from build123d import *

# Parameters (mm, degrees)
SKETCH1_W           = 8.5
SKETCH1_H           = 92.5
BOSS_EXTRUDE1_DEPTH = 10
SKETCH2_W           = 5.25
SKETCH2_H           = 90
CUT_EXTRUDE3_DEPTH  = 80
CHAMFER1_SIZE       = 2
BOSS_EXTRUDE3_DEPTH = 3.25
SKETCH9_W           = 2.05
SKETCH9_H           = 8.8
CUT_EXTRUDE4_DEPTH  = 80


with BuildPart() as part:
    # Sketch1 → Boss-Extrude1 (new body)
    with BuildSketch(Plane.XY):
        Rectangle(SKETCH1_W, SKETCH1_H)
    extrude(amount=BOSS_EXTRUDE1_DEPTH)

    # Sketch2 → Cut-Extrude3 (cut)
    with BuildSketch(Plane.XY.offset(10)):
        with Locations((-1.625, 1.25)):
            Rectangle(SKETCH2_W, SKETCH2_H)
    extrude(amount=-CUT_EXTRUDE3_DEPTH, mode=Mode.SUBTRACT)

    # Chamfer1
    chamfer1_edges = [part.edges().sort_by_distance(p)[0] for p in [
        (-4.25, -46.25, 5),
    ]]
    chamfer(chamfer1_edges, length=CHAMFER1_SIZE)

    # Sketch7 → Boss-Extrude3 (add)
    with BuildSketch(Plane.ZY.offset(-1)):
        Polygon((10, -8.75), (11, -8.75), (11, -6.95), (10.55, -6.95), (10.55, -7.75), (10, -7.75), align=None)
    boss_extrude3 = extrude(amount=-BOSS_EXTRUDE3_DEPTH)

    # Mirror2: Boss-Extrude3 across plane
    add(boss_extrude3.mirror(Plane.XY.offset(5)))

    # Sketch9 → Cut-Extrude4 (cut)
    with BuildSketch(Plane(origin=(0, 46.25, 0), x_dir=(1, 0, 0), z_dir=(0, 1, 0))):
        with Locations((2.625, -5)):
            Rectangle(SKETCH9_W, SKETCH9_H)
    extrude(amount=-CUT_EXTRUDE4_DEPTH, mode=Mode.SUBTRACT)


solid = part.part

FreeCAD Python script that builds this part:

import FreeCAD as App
import Part
import Sketcher


def edges_at(feature, points):
    """Names of the edges that pass closest to the given points."""
    edges = feature.Shape.Edges
    near = lambda p: min(range(len(edges)), key=lambda i: edges[i].distToShape(Part.Vertex(*p))[0])
    return sorted({f"Edge{near(p) + 1}" for p in points})

doc = App.newDocument("Part")
body = doc.addObject("PartDesign::Body", "Body")

sketch1 = body.newObject("Sketcher::SketchObject", "Sketch")
sketch1.AttachmentSupport = (doc.getObject("XY_Plane"), [""])
sketch1.MapMode = "FlatFace"
sketch1.addGeometry([
    Part.LineSegment(App.Vector(-4, 46, 0), App.Vector(-4, -46, 0)),
    Part.LineSegment(App.Vector(-4, -46, 0), App.Vector(4, -46, 0)),
    Part.LineSegment(App.Vector(4, -46, 0), App.Vector(4, 46, 0)),
    Part.LineSegment(App.Vector(4, 46, 0), App.Vector(-4, 46, 0)),
], False)
sketch1.addConstraint([
    Sketcher.Constraint("Coincident", 0, 2, 1, 1),
    Sketcher.Constraint("Coincident", 1, 2, 2, 1),
    Sketcher.Constraint("Coincident", 2, 2, 3, 1),
    Sketcher.Constraint("Coincident", 3, 2, 0, 1),
    Sketcher.Constraint("Vertical", 0),
    Sketcher.Constraint("Horizontal", 1),
    Sketcher.Constraint("Vertical", 2),
    Sketcher.Constraint("Horizontal", 3),
    Sketcher.Constraint("Symmetric", 0, 2, 2, 2, -1, 1),
    Sketcher.Constraint("DistanceX", 1, 1, 1, 2, 8.5),
    Sketcher.Constraint("DistanceY", 0, 2, 0, 1, 92.5),
])
pad1 = body.newObject("PartDesign::Pad", "Pad")
pad1.Profile = sketch1
pad1.Length = 10

sketch2 = body.newObject("Sketcher::SketchObject", "Sketch001")
sketch2.AttachmentSupport = (doc.getObject("XY_Plane"), [""])
sketch2.MapMode = "FlatFace"
sketch2.AttachmentOffset = App.Placement(App.Vector(0, 0, 10), App.Rotation())
sketch2.addGeometry([
    Part.LineSegment(App.Vector(-4, 46, 0), App.Vector(-4, -44, 0)),
    Part.LineSegment(App.Vector(-4, -44, 0), App.Vector(1, -44, 0)),
    Part.LineSegment(App.Vector(1, -44, 0), App.Vector(1, 46, 0)),
    Part.LineSegment(App.Vector(1, 46, 0), App.Vector(-4, 46, 0)),
], False)
sketch2.addConstraint([
    Sketcher.Constraint("Coincident", 0, 2, 1, 1),
    Sketcher.Constraint("Coincident", 1, 2, 2, 1),
    Sketcher.Constraint("Coincident", 2, 2, 3, 1),
    Sketcher.Constraint("Coincident", 3, 2, 0, 1),
    Sketcher.Constraint("Vertical", 0),
    Sketcher.Constraint("Horizontal", 1),
    Sketcher.Constraint("Vertical", 2),
    Sketcher.Constraint("Horizontal", 3),
    Sketcher.Constraint("DistanceY", 0, 2, 0, 1, 90.0),
    Sketcher.Constraint("DistanceX", -1, 1, 1, 2, 1.0),
    Sketcher.Constraint("DistanceX", 1, 1, 1, 2, 5.25),
    Sketcher.Constraint("DistanceY", 0, 2, -1, 1, 43.75),
])
pocket1 = body.newObject("PartDesign::Pocket", "Pocket")
pocket1.Profile = sketch2
pocket1.Length = 80
doc.recompute()

chamfer = body.newObject("PartDesign::Chamfer", "Chamfer")
chamfer.Base = (pocket1, edges_at(pocket1, [(-4.25, -46.25, 5)]))
chamfer.Size = 2

sketch3 = body.newObject("Sketcher::SketchObject", "Sketch002")
sketch3.AttachmentSupport = (doc.getObject("YZ_Plane"), [""])
sketch3.MapMode = "FlatFace"
sketch3.AttachmentOffset = App.Placement(App.Vector(0, 0, 1), App.Rotation())
sketch3.addGeometry([
    Part.LineSegment(App.Vector(-8.75, 10, 0), App.Vector(-8.75, 11, 0)),
    Part.LineSegment(App.Vector(-8.75, 11, 0), App.Vector(-6.95, 11, 0)),
    Part.LineSegment(App.Vector(-6.95, 11, 0), App.Vector(-6.95, 10.55, 0)),
    Part.LineSegment(App.Vector(-6.95, 10.55, 0), App.Vector(-7.75, 10.55, 0)),
    Part.LineSegment(App.Vector(-7.75, 10.55, 0), App.Vector(-7.75, 10, 0)),
    Part.LineSegment(App.Vector(-7.75, 10, 0), App.Vector(-8.75, 10, 0)),
], False)
sketch3.addConstraint([
    Sketcher.Constraint("Coincident", 0, 2, 1, 1),
    Sketcher.Constraint("Coincident", 1, 2, 2, 1),
    Sketcher.Constraint("Coincident", 2, 2, 3, 1),
    Sketcher.Constraint("Coincident", 3, 2, 4, 1),
    Sketcher.Constraint("Coincident", 4, 2, 5, 1),
    Sketcher.Constraint("Coincident", 5, 2, 0, 1),
    Sketcher.Constraint("Vertical", 0),
    Sketcher.Constraint("Horizontal", 1),
    Sketcher.Constraint("Vertical", 2),
    Sketcher.Constraint("Horizontal", 3),
    Sketcher.Constraint("Vertical", 4),
    Sketcher.Constraint("Horizontal", 5),
    Sketcher.Constraint("Equal", 5, 0),
    Sketcher.Constraint("DistanceX", 5, 2, 5, 1, 1.0),
    Sketcher.Constraint("DistanceX", 1, 1, 1, 2, 1.8),
    Sketcher.Constraint("DistanceY", -1, 1, 0, 2, 11.0),
    Sketcher.Constraint("DistanceY", 2, 2, 2, 1, 0.45),
    Sketcher.Constraint("DistanceX", 0, 2, -1, 1, 8.75),
])
pad2 = body.newObject("PartDesign::Pad", "Pad001")
pad2.Profile = sketch3
pad2.Length = 3.25
doc.recompute()

datumplane = body.newObject("PartDesign::Plane", "DatumPlane")
datumplane.AttachmentSupport = (doc.getObject("XY_Plane"), [""])
datumplane.MapMode = "FlatFace"
datumplane.AttachmentOffset = App.Placement(App.Vector(0, 0, 5), App.Rotation())
mirrored = body.newObject("PartDesign::Mirrored", "Mirrored")
mirrored.Originals = [pad2]
mirrored.MirrorPlane = (datumplane, [""])
body.Tip = mirrored

sketch4 = body.newObject("Sketcher::SketchObject", "Sketch003")
sketch4.AttachmentSupport = (doc.getObject("XZ_Plane"), [""])
sketch4.MapMode = "FlatFace"
sketch4.AttachmentOffset = App.Placement(App.Vector(0, 0, -46.25), App.Rotation())
sketch4.addGeometry([
    Part.LineSegment(App.Vector(1.6, 0.6, 0), App.Vector(1.6, 9.4, 0)),
    Part.LineSegment(App.Vector(1.6, 9.4, 0), App.Vector(3.6, 9.4, 0)),
    Part.LineSegment(App.Vector(3.6, 9.4, 0), App.Vector(3.6, 0.6, 0)),
    Part.LineSegment(App.Vector(3.6, 0.6, 0), App.Vector(1.6, 0.6, 0)),
], False)
sketch4.addConstraint([
    Sketcher.Constraint("Coincident", 0, 2, 1, 1),
    Sketcher.Constraint("Coincident", 1, 2, 2, 1),
    Sketcher.Constraint("Coincident", 2, 2, 3, 1),
    Sketcher.Constraint("Coincident", 3, 2, 0, 1),
    Sketcher.Constraint("Vertical", 0),
    Sketcher.Constraint("Horizontal", 1),
    Sketcher.Constraint("Vertical", 2),
    Sketcher.Constraint("Horizontal", 3),
    Sketcher.Constraint("DistanceY", 0, 1, 0, 2, 8.8),
    Sketcher.Constraint("DistanceX", 1, 1, 1, 2, 2.05),
    Sketcher.Constraint("DistanceX", -1, 1, 0, 2, 1.6),
    Sketcher.Constraint("DistanceY", -1, 1, 0, 2, 9.4),
])
pocket2 = body.newObject("PartDesign::Pocket", "Pocket001")
pocket2.Profile = sketch4
pocket2.Length = 80
pocket2.Reversed = True

doc.recompute()
